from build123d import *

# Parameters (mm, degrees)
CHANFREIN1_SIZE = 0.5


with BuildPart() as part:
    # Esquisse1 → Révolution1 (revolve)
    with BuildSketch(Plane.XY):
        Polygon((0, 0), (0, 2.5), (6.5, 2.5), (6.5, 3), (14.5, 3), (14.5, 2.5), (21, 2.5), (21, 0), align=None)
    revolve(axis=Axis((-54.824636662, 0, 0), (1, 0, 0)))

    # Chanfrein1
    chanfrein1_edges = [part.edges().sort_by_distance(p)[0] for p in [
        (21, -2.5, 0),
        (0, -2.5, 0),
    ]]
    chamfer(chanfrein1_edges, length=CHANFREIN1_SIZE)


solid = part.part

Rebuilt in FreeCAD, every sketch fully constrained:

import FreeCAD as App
import Part
import Sketcher
from FreeCAD import Vector


def edges_at(feature, points):
    """Names of the edges that pass closest to the given points."""
    edges = feature.Shape.Edges
    near = lambda p: min(range(len(edges)), key=lambda i: edges[i].distToShape(Part.Vertex(*p))[0])
    return sorted({f"Edge{near(p) + 1}" for p in points})


def add_polygon(sketch, points):
    """Adds a closed chain of lines whose ends are joined by coincident constraints."""
    first, n = sketch.GeometryCount, len(points)
    for a, b in zip(points, points[1:] + points[:1]):
        sketch.addGeometry(Part.LineSegment(App.Vector(*a, 0), App.Vector(*b, 0)), False)
    for i in range(n):
        sketch.addConstraint(Sketcher.Constraint("Coincident", first + i, 2, first + (i + 1) % n, 1))

doc = App.newDocument("Part")
body = doc.addObject("PartDesign::Body", "Body")

# Sketch on XY plane
sketch1 = body.newObject("Sketcher::SketchObject", "Sketch")
sketch1.AttachmentSupport = (doc.getObject("XY_Plane"), [""])
sketch1.MapMode = "FlatFace"
add_polygon(sketch1, [(0, 2.5), (0, 0), (21, 0), (21, 2.5), (14.5, 2.5), (14.5, 3), (6.5, 3), (6.5, 2.5)])  # lines 0-7
sketch1.addConstraint(Sketcher.Constraint("Vertical", 0))
sketch1.addConstraint(Sketcher.Constraint("Horizontal", 1))
sketch1.addConstraint(Sketcher.Constraint("Vertical", 2))
sketch1.addConstraint(Sketcher.Constraint("Horizontal", 3))
sketch1.addConstraint(Sketcher.Constraint("Vertical", 4))
sketch1.addConstraint(Sketcher.Constraint("Horizontal", 5))
sketch1.addConstraint(Sketcher.Constraint("Vertical", 6))
sketch1.addConstraint(Sketcher.Constraint("Horizontal", 7))
sketch1.addConstraint(Sketcher.Constraint("Coincident", 0, 2, -1, 1))
sketch1.addConstraint(Sketcher.Constraint("Horizontal", 3, 2, 6, 2))
sketch1.addConstraint(Sketcher.Constraint("Equal", 3, 7))
sketch1.addConstraint(Sketcher.Constraint("DistanceX", 1, 1, 1, 2, 21.0))
sketch1.addConstraint(Sketcher.Constraint("DistanceX", 5, 2, 5, 1, 8.0))
sketch1.addConstraint(Sketcher.Constraint("DistanceY", 0, 2, 0, 1, 2.5))
sketch1.addConstraint(Sketcher.Constraint("DistanceY", 4, 1, 4, 2, 0.5))
revolution = body.newObject("PartDesign::Revolution", "Revolution")
revolution.Profile = sketch1
revolution.ReferenceAxis = (sketch1, ["H_Axis"])
revolution.Angle = 360
doc.recompute()

chamfer = body.newObject("PartDesign::Chamfer", "Chamfer")
chamfer.Base = (revolution, edges_at(revolution, [(21, -2.5, 0), (0, -2.5, 0)]))
chamfer.Size = 0.5

doc.recompute()
